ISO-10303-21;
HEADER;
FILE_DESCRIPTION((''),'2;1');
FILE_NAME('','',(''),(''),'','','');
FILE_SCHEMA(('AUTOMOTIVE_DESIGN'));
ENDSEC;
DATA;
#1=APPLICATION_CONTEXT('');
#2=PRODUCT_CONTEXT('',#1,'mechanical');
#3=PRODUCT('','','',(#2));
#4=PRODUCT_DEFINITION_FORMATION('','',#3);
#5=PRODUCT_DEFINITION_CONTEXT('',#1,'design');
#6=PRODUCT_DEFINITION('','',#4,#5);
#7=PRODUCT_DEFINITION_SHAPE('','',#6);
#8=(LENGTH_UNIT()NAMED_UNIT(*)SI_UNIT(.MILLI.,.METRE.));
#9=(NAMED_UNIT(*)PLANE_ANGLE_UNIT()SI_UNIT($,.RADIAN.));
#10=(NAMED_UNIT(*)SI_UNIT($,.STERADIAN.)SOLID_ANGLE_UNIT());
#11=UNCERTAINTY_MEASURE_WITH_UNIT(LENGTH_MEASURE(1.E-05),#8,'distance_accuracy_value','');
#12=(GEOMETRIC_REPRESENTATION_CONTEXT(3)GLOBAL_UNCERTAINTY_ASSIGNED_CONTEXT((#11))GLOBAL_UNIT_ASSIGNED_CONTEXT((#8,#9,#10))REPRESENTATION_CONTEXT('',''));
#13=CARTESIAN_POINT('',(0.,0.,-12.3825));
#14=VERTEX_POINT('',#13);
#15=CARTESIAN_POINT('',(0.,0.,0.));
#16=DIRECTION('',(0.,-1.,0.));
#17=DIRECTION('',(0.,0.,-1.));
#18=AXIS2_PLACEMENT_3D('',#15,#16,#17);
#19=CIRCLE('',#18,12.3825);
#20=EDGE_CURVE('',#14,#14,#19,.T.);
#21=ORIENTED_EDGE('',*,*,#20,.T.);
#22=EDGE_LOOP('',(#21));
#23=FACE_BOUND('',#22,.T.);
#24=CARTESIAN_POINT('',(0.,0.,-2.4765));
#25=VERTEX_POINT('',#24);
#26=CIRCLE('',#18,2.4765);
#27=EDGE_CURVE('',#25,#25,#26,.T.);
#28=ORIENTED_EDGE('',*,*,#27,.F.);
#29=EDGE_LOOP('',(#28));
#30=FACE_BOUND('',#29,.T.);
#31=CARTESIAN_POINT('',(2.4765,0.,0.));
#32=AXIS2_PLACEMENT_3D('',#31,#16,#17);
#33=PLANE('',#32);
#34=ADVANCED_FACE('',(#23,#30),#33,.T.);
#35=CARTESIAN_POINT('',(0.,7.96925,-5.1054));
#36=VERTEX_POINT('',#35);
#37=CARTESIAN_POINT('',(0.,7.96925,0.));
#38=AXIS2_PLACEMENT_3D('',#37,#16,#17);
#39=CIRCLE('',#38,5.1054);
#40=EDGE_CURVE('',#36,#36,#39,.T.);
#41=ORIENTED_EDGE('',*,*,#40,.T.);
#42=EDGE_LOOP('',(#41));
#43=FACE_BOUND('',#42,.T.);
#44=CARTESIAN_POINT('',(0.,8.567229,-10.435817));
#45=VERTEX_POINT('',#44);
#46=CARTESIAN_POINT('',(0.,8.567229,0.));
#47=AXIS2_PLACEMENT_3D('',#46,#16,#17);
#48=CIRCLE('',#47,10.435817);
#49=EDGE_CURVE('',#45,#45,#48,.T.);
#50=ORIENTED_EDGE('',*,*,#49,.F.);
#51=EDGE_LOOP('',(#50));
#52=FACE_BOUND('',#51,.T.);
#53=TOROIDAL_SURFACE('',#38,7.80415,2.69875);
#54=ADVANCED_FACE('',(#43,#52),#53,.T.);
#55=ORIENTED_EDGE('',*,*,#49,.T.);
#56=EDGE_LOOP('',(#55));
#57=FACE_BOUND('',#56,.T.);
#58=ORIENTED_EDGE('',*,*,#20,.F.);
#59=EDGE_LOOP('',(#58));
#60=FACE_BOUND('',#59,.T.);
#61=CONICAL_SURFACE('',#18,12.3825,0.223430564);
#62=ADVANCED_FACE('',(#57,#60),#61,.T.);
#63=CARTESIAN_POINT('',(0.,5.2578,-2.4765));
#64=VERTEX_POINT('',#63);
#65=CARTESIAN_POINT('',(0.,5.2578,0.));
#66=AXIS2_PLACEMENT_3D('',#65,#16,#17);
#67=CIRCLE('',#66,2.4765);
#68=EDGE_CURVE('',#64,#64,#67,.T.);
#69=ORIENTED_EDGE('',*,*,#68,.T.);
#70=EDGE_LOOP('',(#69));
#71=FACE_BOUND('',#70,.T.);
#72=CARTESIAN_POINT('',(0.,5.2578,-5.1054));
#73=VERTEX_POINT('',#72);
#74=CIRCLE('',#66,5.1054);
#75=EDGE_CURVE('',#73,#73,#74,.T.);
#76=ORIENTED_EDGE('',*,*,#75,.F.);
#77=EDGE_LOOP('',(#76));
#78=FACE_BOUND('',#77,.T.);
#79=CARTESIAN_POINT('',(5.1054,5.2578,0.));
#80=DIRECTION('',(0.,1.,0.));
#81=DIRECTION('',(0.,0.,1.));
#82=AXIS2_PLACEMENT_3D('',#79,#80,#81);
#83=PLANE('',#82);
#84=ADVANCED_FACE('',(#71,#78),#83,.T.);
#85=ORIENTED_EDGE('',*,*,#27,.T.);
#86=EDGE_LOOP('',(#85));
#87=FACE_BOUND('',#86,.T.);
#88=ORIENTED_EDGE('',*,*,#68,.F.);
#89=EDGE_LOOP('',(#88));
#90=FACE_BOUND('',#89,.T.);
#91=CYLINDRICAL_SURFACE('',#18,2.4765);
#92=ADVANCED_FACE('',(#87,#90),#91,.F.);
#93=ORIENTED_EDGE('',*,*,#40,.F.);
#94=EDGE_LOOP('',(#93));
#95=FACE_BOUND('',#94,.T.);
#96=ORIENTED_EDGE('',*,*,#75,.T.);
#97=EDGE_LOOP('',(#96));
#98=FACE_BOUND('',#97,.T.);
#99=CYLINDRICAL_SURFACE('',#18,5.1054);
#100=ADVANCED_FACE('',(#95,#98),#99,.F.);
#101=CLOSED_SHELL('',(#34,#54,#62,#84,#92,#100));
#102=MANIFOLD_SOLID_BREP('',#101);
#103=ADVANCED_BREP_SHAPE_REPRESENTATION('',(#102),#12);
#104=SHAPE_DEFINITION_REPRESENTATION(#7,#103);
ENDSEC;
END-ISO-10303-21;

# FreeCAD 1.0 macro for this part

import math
import FreeCAD as App
import Part
import Sketcher
from FreeCAD import Vector
Q = App.Units.Quantity

doc = App.newDocument("Part")
params = doc.addObject("Spreadsheet::Sheet", "Params")
for row, (alias, value) in enumerate([
    ("sketch1_width", "0.39 in"),
    ("sketch1_height", "0.207 in"),
    ("revolution_angle", "360 deg"),
], start=1):
    params.set(f"A{row}", alias)
    params.set(f"B{row}", "=" + value)
    params.setAlias(f"B{row}", alias)

body = doc.addObject("PartDesign::Body", "Body")

sketch1 = body.newObject("Sketcher::SketchObject", "Sketch")
sketch1.AttachmentSupport = (doc.getObject("XY_Plane"), [""])
sketch1.MapMode = "FlatFace"
sketch1.addGeometry([
    Part.LineSegment(Vector(12.4, 0, 0), Vector(10.4, 8.6, 0)),
    Part.ArcOfCircle(Part.Circle(Vector(7.8, 8, 0), Vector(0, 0, 1), 2.7), math.radians(13), math.radians(180)),
    Part.LineSegment(Vector(5.1, 8, 0), Vector(5.1, 5.3, 0)),
    Part.LineSegment(Vector(5.1, 5.3, 0), Vector(2.5, 5.3, 0)),
    Part.LineSegment(Vector(2.5, 5.3, 0), Vector(2.5, 0, 0)),
    Part.LineSegment(Vector(2.5, 0, 0), Vector(12.4, 0, 0)),
], False)
sketch1.addConstraint([
    Sketcher.Constraint("Tangent", 0, 2, 1, 1),
    Sketcher.Constraint("Tangent", 1, 2, 2, 1),
    Sketcher.Constraint("Coincident", 2, 2, 3, 1),
    Sketcher.Constraint("Coincident", 3, 2, 4, 1),
    Sketcher.Constraint("Coincident", 4, 2, 5, 1),
    Sketcher.Constraint("Coincident", 5, 2, 0, 1),
    Sketcher.Constraint("Vertical", 2),
    Sketcher.Constraint("Horizontal", 3),
    Sketcher.Constraint("Vertical", 4),
    Sketcher.Constraint("Horizontal", 5),
    Sketcher.Constraint("PointOnObject", 4, 2, -1),
    Sketcher.Constraint("DistanceX", 5, 1, 5, 2, Q("0.39 in")),
    Sketcher.Constraint("DistanceY", 4, 2, 4, 1, Q("0.207 in")),
    Sketcher.Constraint("DistanceX", 3, 2, 3, 1, Q("0.1035 in")),
    Sketcher.Constraint("DistanceX", -1, 1, 1, 2, Q("0.201 in")),
    Sketcher.Constraint("Radius", 1, 2.69875),
    Sketcher.Constraint("DistanceY", 2, 2, 2, 1, 2.71145),
])
sketch1.setExpression("Constraints[11]", "Params.sketch1_width")
sketch1.setExpression("Constraints[12]", "Params.sketch1_height")
revolution = body.newObject("PartDesign::Revolution", "Revolution")
revolution.Profile = sketch1
revolution.ReferenceAxis = (sketch1, ["V_Axis"])
revolution.setExpression("Angle", "Params.revolution_angle")

doc.recompute()
